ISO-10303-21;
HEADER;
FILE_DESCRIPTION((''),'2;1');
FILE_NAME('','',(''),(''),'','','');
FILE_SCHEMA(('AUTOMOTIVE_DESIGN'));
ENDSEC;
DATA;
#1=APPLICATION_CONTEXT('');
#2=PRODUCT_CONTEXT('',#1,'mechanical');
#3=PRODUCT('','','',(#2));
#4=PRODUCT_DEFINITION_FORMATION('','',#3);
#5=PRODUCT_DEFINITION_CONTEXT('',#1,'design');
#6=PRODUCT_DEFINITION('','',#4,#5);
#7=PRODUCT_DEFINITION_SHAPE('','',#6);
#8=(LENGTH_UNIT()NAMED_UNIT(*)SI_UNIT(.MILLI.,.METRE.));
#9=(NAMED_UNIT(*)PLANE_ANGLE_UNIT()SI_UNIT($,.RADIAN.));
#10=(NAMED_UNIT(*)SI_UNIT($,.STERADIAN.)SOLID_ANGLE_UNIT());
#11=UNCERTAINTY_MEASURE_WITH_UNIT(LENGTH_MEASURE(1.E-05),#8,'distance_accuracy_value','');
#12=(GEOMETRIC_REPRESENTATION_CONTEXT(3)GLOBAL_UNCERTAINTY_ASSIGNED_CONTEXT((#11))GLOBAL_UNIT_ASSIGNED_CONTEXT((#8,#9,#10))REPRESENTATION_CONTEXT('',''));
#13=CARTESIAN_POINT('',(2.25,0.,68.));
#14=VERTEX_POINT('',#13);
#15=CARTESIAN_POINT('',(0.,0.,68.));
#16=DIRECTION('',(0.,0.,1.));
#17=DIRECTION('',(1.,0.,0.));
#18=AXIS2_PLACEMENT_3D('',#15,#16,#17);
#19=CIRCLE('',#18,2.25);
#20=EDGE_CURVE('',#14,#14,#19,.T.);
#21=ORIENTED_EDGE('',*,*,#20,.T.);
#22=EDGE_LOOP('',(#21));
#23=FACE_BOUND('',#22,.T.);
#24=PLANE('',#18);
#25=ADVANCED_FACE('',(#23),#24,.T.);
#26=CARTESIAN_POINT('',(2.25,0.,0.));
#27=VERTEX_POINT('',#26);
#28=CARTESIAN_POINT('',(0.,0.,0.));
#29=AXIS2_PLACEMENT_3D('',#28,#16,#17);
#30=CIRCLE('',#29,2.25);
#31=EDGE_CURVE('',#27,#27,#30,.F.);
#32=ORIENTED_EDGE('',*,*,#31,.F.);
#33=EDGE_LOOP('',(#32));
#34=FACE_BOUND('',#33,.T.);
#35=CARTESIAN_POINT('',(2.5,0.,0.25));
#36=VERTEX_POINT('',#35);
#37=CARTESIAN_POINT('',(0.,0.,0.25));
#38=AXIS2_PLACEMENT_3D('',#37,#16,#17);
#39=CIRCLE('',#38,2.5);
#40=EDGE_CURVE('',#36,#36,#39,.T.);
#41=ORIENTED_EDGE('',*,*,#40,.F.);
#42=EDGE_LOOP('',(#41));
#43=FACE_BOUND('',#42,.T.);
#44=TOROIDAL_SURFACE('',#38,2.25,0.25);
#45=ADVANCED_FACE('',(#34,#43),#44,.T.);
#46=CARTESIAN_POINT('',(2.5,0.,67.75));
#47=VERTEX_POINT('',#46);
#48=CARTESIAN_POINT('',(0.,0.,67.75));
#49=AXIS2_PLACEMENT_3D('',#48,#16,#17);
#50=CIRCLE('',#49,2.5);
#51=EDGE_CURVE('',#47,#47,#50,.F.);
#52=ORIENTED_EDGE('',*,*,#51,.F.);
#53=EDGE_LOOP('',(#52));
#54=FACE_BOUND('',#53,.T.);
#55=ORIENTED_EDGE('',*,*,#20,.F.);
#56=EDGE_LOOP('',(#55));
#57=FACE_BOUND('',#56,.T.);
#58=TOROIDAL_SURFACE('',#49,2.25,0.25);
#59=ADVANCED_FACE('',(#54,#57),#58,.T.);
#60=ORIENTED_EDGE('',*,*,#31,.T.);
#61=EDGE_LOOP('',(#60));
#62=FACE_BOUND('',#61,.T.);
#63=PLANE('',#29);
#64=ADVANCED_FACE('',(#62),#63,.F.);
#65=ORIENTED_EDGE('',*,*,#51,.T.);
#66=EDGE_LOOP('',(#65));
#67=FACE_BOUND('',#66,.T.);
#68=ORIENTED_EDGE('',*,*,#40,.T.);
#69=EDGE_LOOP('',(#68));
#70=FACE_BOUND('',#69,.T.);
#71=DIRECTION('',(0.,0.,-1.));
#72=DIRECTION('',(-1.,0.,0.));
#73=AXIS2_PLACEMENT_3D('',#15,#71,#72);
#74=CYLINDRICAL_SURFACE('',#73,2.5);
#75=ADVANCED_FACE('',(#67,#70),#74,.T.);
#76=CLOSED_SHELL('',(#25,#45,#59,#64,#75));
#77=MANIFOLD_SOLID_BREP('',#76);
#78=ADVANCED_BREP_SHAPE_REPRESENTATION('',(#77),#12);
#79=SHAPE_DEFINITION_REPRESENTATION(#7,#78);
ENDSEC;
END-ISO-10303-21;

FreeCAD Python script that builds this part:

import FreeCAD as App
import Part
import Sketcher
Q = App.Units.Quantity


def edges_at(feature, points):
    """Names of the edges that pass closest to the given points."""
    edges = feature.Shape.Edges
    near = lambda p: min(range(len(edges)), key=lambda i: edges[i].distToShape(Part.Vertex(*p))[0])
    return sorted({f"Edge{near(p) + 1}" for p in points})

doc = App.newDocument("Part")
body = doc.addObject("PartDesign::Body", "Body")

# Sketch on XY plane
sketch1 = body.newObject("Sketcher::SketchObject", "Sketch")
sketch1.AttachmentSupport = (doc.getObject("XY_Plane"), [""])
sketch1.MapMode = "FlatFace"
sketch1.addGeometry(Part.Circle(App.Vector(0, 0, 0), App.Vector(0, 0, 1), 2.5), False)
sketch1.addConstraint(Sketcher.Constraint("Coincident", 0, 3, -1, 1))
sketch1.addConstraint(Sketcher.Constraint("Diameter", 0, Q("5 mm")))
pad1 = body.newObject("PartDesign::Pad", "Pad")
pad1.Profile = sketch1
pad1.Length = 68
doc.recompute()

fillet = body.newObject("PartDesign::Fillet", "Fillet")
fillet.Base = (pad1, edges_at(pad1, [(-2.5, 0, 0), (-2.5, 0, 68)]))
fillet.Radius = 0.25

doc.recompute()
